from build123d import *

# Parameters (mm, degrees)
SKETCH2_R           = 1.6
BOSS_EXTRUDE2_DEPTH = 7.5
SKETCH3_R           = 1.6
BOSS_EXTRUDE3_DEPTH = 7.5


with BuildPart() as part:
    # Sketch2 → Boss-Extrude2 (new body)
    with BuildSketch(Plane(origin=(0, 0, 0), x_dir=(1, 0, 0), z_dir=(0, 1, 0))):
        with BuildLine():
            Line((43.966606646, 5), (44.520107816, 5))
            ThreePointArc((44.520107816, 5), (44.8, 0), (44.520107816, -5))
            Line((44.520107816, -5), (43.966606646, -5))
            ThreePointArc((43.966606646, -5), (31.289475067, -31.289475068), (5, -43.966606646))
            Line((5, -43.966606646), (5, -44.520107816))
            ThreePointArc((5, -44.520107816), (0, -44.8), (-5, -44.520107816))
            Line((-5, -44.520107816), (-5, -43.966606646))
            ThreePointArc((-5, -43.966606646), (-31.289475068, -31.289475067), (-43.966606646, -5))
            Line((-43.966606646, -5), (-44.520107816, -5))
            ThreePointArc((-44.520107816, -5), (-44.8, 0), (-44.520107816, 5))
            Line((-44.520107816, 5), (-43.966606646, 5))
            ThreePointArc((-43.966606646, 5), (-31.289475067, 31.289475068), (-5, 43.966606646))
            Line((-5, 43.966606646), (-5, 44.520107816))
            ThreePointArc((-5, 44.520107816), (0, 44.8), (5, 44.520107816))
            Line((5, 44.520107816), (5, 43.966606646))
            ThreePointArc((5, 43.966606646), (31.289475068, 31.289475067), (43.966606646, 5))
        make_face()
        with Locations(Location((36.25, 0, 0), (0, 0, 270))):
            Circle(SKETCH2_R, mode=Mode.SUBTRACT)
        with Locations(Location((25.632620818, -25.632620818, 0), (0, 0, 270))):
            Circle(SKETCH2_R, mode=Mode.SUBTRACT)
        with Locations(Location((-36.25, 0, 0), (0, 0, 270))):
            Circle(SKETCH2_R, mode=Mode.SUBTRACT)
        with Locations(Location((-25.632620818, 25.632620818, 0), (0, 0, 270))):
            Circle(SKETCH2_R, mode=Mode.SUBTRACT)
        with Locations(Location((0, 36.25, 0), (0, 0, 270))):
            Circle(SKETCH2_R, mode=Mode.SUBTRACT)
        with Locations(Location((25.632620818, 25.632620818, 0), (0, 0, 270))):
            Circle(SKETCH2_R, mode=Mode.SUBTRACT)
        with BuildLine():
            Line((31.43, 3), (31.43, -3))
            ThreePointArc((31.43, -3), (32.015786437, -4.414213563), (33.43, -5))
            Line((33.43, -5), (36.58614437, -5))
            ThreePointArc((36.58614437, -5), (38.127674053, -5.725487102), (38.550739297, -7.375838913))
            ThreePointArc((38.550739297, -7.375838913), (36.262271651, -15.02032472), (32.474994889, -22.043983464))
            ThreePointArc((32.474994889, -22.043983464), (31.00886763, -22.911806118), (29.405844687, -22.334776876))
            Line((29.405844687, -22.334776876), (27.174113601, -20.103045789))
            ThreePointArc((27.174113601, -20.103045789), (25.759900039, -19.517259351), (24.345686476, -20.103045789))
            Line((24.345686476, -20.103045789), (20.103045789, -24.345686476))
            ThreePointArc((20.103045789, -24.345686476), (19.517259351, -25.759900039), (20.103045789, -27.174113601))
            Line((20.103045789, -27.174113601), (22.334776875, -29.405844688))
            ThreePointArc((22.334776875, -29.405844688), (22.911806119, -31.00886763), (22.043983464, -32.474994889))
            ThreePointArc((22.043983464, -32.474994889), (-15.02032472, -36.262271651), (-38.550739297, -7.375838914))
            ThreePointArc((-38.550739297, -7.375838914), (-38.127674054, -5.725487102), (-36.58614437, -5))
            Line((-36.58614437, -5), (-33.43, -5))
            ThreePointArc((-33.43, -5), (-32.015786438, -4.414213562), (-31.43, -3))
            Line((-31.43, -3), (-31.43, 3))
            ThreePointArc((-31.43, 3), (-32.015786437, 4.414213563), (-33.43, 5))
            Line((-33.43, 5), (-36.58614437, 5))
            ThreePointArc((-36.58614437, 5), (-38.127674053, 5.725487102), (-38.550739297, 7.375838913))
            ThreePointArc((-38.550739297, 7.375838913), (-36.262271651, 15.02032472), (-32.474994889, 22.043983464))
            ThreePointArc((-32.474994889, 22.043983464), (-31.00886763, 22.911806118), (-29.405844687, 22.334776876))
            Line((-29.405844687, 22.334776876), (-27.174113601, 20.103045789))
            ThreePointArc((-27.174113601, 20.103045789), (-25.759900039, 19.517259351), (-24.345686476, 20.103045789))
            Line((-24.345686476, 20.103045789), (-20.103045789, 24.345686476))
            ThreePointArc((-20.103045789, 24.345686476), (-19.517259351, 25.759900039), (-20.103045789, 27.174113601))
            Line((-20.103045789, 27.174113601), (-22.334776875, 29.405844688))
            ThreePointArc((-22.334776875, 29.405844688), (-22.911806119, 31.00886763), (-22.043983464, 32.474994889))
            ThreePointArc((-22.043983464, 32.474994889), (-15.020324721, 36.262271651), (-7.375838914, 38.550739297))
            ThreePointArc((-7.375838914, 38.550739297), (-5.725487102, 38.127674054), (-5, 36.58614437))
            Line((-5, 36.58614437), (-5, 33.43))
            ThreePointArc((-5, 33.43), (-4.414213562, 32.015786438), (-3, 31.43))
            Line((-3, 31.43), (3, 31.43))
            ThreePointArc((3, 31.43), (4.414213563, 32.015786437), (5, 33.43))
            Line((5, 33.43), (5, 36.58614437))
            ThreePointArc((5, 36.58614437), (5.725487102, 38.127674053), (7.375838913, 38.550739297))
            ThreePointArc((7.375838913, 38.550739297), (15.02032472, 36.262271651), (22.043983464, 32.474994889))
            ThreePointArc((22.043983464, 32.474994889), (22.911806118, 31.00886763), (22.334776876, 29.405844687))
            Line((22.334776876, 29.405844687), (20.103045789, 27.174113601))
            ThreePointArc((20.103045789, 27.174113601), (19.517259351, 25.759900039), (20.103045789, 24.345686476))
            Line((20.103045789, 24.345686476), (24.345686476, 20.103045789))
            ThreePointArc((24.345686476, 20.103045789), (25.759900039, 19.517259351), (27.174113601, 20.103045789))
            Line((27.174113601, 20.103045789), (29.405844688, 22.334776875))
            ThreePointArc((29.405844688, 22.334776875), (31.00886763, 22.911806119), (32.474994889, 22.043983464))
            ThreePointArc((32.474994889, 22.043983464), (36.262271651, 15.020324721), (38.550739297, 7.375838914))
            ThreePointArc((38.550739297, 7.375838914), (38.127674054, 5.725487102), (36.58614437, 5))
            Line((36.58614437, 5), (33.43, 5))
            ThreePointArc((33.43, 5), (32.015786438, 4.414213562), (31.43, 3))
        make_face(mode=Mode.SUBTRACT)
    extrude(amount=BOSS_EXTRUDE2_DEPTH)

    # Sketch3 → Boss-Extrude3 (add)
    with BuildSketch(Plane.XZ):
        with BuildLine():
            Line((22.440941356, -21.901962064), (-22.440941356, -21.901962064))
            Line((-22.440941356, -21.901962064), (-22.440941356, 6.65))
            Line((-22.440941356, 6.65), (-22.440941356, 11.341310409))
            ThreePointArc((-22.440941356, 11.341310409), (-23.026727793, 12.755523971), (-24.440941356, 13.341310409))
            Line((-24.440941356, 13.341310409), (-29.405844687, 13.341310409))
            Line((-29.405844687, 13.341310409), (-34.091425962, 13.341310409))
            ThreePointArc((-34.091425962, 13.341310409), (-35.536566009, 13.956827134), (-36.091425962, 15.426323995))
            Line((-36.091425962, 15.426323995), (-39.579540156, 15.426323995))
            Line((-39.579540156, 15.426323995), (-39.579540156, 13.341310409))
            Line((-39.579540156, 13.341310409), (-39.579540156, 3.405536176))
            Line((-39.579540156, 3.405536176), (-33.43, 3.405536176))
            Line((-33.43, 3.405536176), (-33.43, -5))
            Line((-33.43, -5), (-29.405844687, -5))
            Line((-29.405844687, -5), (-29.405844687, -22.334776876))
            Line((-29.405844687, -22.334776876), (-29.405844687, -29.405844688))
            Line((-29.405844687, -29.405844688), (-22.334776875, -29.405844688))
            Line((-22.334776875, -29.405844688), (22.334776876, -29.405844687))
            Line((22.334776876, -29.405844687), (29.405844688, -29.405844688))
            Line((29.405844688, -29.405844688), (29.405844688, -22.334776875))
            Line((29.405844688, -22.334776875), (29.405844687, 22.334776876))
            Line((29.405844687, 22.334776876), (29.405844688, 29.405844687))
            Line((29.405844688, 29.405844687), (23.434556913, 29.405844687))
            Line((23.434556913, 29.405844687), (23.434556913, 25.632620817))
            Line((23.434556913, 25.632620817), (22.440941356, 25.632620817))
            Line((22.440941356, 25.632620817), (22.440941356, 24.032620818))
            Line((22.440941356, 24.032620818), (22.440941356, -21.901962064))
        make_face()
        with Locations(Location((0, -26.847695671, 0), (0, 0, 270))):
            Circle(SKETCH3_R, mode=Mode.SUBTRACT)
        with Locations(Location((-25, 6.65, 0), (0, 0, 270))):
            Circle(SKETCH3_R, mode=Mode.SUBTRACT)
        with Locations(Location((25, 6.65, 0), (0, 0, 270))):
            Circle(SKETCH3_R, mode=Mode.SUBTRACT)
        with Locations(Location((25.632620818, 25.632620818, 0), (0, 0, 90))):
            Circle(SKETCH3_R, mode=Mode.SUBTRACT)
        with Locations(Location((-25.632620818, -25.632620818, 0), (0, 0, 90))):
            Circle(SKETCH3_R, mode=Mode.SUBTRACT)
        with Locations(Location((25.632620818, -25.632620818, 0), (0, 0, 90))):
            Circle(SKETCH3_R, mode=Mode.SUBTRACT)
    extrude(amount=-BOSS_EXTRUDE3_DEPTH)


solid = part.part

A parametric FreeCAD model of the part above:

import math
import FreeCAD as App
import Part
import Sketcher

doc = App.newDocument("Part")
body = doc.addObject("PartDesign::Body", "Body")

# Sketch on XZ plane
sketch1 = doc.addObject("Sketcher::SketchObject", "Sketch")
body.addObject(sketch1)
sketch1.AttachmentSupport = (doc.XZ_Plane, [""])
sketch1.MapMode = "FlatFace"
sketch1.addGeometry(Part.LineSegment(App.Vector(44.5, -5, 0), App.Vector(44, -5, 0)), False)
sketch1.addGeometry(Part.ArcOfCircle(Part.Circle(App.Vector(0, 0, 0), App.Vector(0, 0, 1), 44.2), math.radians(-84), math.radians(-6)), False)
sketch1.addGeometry(Part.LineSegment(App.Vector(5, -44, 0), App.Vector(5, -44.5, 0)), False)
sketch1.addGeometry(Part.ArcOfCircle(Part.Circle(App.Vector(0, 0, 0), App.Vector(0, 0, 1), 44.8), math.radians(-96.41), math.radians(-83.59)), False)
sketch1.addGeometry(Part.LineSegment(App.Vector(-5, -44.5, 0), App.Vector(-5, -44, 0)), False)
sketch1.addGeometry(Part.ArcOfCircle(Part.Circle(App.Vector(0, 0, 0), App.Vector(0, 0, 1), 44.2), math.radians(-174), math.radians(-96)), False)
sketch1.addGeometry(Part.LineSegment(App.Vector(-44, -5, 0), App.Vector(-44.5, -5, 0)), False)
sketch1.addGeometry(Part.ArcOfCircle(Part.Circle(App.Vector(0, 0, 0), App.Vector(0, 0, 1), 44.8), math.radians(173.59), math.radians(186.41)), False)
sketch1.addGeometry(Part.LineSegment(App.Vector(-44.5, 5, 0), App.Vector(-44, 5, 0)), False)
sketch1.addGeometry(Part.ArcOfCircle(Part.Circle(App.Vector(0, 0, 0), App.Vector(0, 0, 1), 44.2), math.radians(96), math.radians(174)), False)
sketch1.addGeometry(Part.LineSegment(App.Vector(-5, 44, 0), App.Vector(-5, 44.5, 0)), False)
sketch1.addGeometry(Part.ArcOfCircle(Part.Circle(App.Vector(0, 0, 0), App.Vector(0, 0, 1), 44.8), math.radians(83.59), math.radians(96.41)), False)
sketch1.addGeometry(Part.LineSegment(App.Vector(5, 44.5, 0), App.Vector(5, 44, 0)), False)
sketch1.addGeometry(Part.ArcOfCircle(Part.Circle(App.Vector(0, 0, 0), App.Vector(0, 0, 1), 44.2), math.radians(6), math.radians(84)), False)
sketch1.addGeometry(Part.LineSegment(App.Vector(44, 5, 0), App.Vector(44.5, 5, 0)), False)
sketch1.addGeometry(Part.ArcOfCircle(Part.Circle(App.Vector(0, 0, 0), App.Vector(0, 0, 1), 44.8), math.radians(-6.41), math.radians(6.41)), False)
sketch1.addGeometry(Part.Circle(App.Vector(25.6, 25.6, 0), App.Vector(0, 0, 1), 1.6), False)
sketch1.addGeometry(Part.Circle(App.Vector(36.2, 0, 0), App.Vector(0, 0, 1), 1.6), False)
sketch1.addGeometry(Part.Circle(App.Vector(25.6, -25.6, 0), App.Vector(0, 0, 1), 1.6), False)
sketch1.addGeometry(Part.LineSegment(App.Vector(31.4, -3, 0), App.Vector(31.4, 3, 0)), False)
sketch1.addGeometry(Part.ArcOfCircle(Part.Circle(App.Vector(33.4, 3, 0), App.Vector(0, 0, 1), 2), math.radians(90), math.radians(180)), False)
sketch1.addGeometry(Part.LineSegment(App.Vector(33.4, 5, 0), App.Vector(36.6, 5, 0)), False)
sketch1.addGeometry(Part.ArcOfCircle(Part.Circle(App.Vector(36.6, 7, 0), App.Vector(0, 0, 1), 2), math.radians(-90), math.radians(11)), False)
sketch1.addGeometry(Part.ArcOfCircle(Part.Circle(App.Vector(0, 0, 0), App.Vector(0, 0, 1), 39.3), math.radians(11), math.radians(34)), False)
sketch1.addGeometry(Part.ArcOfCircle(Part.Circle(App.Vector(30.8, 20.9, 0), App.Vector(0, 0, 1), 2), math.radians(34), math.radians(135)), False)
sketch1.addGeometry(Part.LineSegment(App.Vector(29.4, 22.3, 0), App.Vector(27.2, 20.1, 0)), False)
sketch1.addGeometry(Part.ArcOfCircle(Part.Circle(App.Vector(25.8, 21.5, 0), App.Vector(0, 0, 1), 2), math.radians(-135), math.radians(-45)), False)
sketch1.addGeometry(Part.LineSegment(App.Vector(24.3, 20.1, 0), App.Vector(20.1, 24.3, 0)), False)
sketch1.addGeometry(Part.ArcOfCircle(Part.Circle(App.Vector(21.5, 25.8, 0), App.Vector(0, 0, 1), 2), math.radians(135), math.radians(225)), False)
sketch1.addGeometry(Part.LineSegment(App.Vector(20.1, 27.2, 0), App.Vector(22.3, 29.4, 0)), False)
sketch1.addGeometry(Part.ArcOfCircle(Part.Circle(App.Vector(20.9, 30.8, 0), App.Vector(0, 0, 1), 2), math.radians(-45), math.radians(56)), False)
sketch1.addGeometry(Part.ArcOfCircle(Part.Circle(App.Vector(0, 0, 0), App.Vector(0, 0, 1), 39.3), math.radians(56), math.radians(169)), False)
sketch1.addGeometry(Part.ArcOfCircle(Part.Circle(App.Vector(-36.6, 7, 0), App.Vector(0, 0, 1), 2), math.radians(169), math.radians(270)), False)
sketch1.addGeometry(Part.LineSegment(App.Vector(-36.6, 5, 0), App.Vector(-33.4, 5, 0)), False)
sketch1.addGeometry(Part.ArcOfCircle(Part.Circle(App.Vector(-33.4, 3, 0), App.Vector(0, 0, 1), 2), math.radians(0), math.radians(90)), False)
sketch1.addGeometry(Part.LineSegment(App.Vector(-31.4, 3, 0), App.Vector(-31.4, -3, 0)), False)
sketch1.addGeometry(Part.ArcOfCircle(Part.Circle(App.Vector(-33.4, -3, 0), App.Vector(0, 0, 1), 2), math.radians(-90), math.radians(0)), False)
sketch1.addGeometry(Part.LineSegment(App.Vector(-33.4, -5, 0), App.Vector(-36.6, -5, 0)), False)
sketch1.addGeometry(Part.ArcOfCircle(Part.Circle(App.Vector(-36.6, -7, 0), App.Vector(0, 0, 1), 2), math.radians(90), math.radians(191)), False)
sketch1.addGeometry(Part.ArcOfCircle(Part.Circle(App.Vector(0, 0, 0), App.Vector(0, 0, 1), 39.3), math.radians(-169), math.radians(-146)), False)
sketch1.addGeometry(Part.ArcOfCircle(Part.Circle(App.Vector(-30.8, -20.9, 0), App.Vector(0, 0, 1), 2), math.radians(-146), math.radians(-45)), False)
sketch1.addGeometry(Part.LineSegment(App.Vector(-29.4, -22.3, 0), App.Vector(-27.2, -20.1, 0)), False)
sketch1.addGeometry(Part.ArcOfCircle(Part.Circle(App.Vector(-25.8, -21.5, 0), App.Vector(0, 0, 1), 2), math.radians(45), math.radians(135)), False)
sketch1.addGeometry(Part.LineSegment(App.Vector(-24.3, -20.1, 0), App.Vector(-20.1, -24.3, 0)), False)
sketch1.addGeometry(Part.ArcOfCircle(Part.Circle(App.Vector(-21.5, -25.8, 0), App.Vector(0, 0, 1), 2), math.radians(-45), math.radians(45)), False)
sketch1.addGeometry(Part.LineSegment(App.Vector(-20.1, -27.2, 0), App.Vector(-22.3, -29.4, 0)), False)
sketch1.addGeometry(Part.ArcOfCircle(Part.Circle(App.Vector(-20.9, -30.8, 0), App.Vector(0, 0, 1), 2), math.radians(135), math.radians(236)), False)
sketch1.addGeometry(Part.ArcOfCircle(Part.Circle(App.Vector(0, 0, 0), App.Vector(0, 0, 1), 39.3), math.radians(-124), math.radians(-101)), False)
sketch1.addGeometry(Part.ArcOfCircle(Part.Circle(App.Vector(-7, -36.6, 0), App.Vector(0, 0, 1), 2), math.radians(-101), math.radians(0)), False)
sketch1.addGeometry(Part.LineSegment(App.Vector(-5, -36.6, 0), App.Vector(-5, -33.4, 0)), False)
sketch1.addGeometry(Part.ArcOfCircle(Part.Circle(App.Vector(-3, -33.4, 0), App.Vector(0, 0, 1), 2), math.radians(90), math.radians(180)), False)
sketch1.addGeometry(Part.LineSegment(App.Vector(-3, -31.4, 0), App.Vector(3, -31.4, 0)), False)
sketch1.addGeometry(Part.ArcOfCircle(Part.Circle(App.Vector(3, -33.4, 0), App.Vector(0, 0, 1), 2), math.radians(0), math.radians(90)), False)
sketch1.addGeometry(Part.LineSegment(App.Vector(5, -33.4, 0), App.Vector(5, -36.6, 0)), False)
sketch1.addGeometry(Part.ArcOfCircle(Part.Circle(App.Vector(7, -36.6, 0), App.Vector(0, 0, 1), 2), math.radians(180), math.radians(281)), False)
sketch1.addGeometry(Part.ArcOfCircle(Part.Circle(App.Vector(0, 0, 0), App.Vector(0, 0, 1), 39.3), math.radians(-79), math.radians(-56)), False)
sketch1.addGeometry(Part.ArcOfCircle(Part.Circle(App.Vector(20.9, -30.8, 0), App.Vector(0, 0, 1), 2), math.radians(-56), math.radians(45)), False)
sketch1.addGeometry(Part.LineSegment(App.Vector(22.3, -29.4, 0), App.Vector(20.1, -27.2, 0)), False)
sketch1.addGeometry(Part.ArcOfCircle(Part.Circle(App.Vector(21.5, -25.8, 0), App.Vector(0, 0, 1), 2), math.radians(135), math.radians(225)), False)
sketch1.addGeometry(Part.LineSegment(App.Vector(20.1, -24.3, 0), App.Vector(24.3, -20.1, 0)), False)
sketch1.addGeometry(Part.ArcOfCircle(Part.Circle(App.Vector(25.8, -21.5, 0), App.Vector(0, 0, 1), 2), math.radians(45), math.radians(135)), False)
sketch1.addGeometry(Part.LineSegment(App.Vector(27.2, -20.1, 0), App.Vector(29.4, -22.3, 0)), False)
sketch1.addGeometry(Part.ArcOfCircle(Part.Circle(App.Vector(30.8, -20.9, 0), App.Vector(0, 0, 1), 2), math.radians(-135), math.radians(-34)), False)
sketch1.addGeometry(Part.ArcOfCircle(Part.Circle(App.Vector(0, 0, 0), App.Vector(0, 0, 1), 39.3), math.radians(-34), math.radians(-11)), False)
sketch1.addGeometry(Part.ArcOfCircle(Part.Circle(App.Vector(36.6, -7, 0), App.Vector(0, 0, 1), 2), math.radians(-11), math.radians(90)), False)
sketch1.addGeometry(Part.LineSegment(App.Vector(36.6, -5, 0), App.Vector(33.4, -5, 0)), False)
sketch1.addGeometry(Part.ArcOfCircle(Part.Circle(App.Vector(33.4, -3, 0), App.Vector(0, 0, 1), 2), math.radians(-180), math.radians(-90)), False)
sketch1.addGeometry(Part.Circle(App.Vector(-36.2, 0, 0), App.Vector(0, 0, 1), 1.6), False)
sketch1.addGeometry(Part.Circle(App.Vector(0, -36.2, 0), App.Vector(0, 0, 1), 1.6), False)
sketch1.addGeometry(Part.Circle(App.Vector(-25.6, -25.6, 0), App.Vector(0, 0, 1), 1.6), False)
sketch1.addConstraint(Sketcher.Constraint("Coincident", 0, 2, 1, 2))
sketch1.addConstraint(Sketcher.Constraint("Coincident", 1, 1, 2, 1))
sketch1.addConstraint(Sketcher.Constraint("Coincident", 2, 2, 3, 2))
sketch1.addConstraint(Sketcher.Constraint("Coincident", 3, 1, 4, 1))
sketch1.addConstraint(Sketcher.Constraint("Coincident", 4, 2, 5, 2))
sketch1.addConstraint(Sketcher.Constraint("Coincident", 5, 1, 6, 1))
sketch1.addConstraint(Sketcher.Constraint("Coincident", 6, 2, 7, 2))
sketch1.addConstraint(Sketcher.Constraint("Coincident", 7, 1, 8, 1))
sketch1.addConstraint(Sketcher.Constraint("Coincident", 8, 2, 9, 2))
sketch1.addConstraint(Sketcher.Constraint("Coincident", 9, 1, 10, 1))
sketch1.addConstraint(Sketcher.Constraint("Coincident", 10, 2, 11, 2))
sketch1.addConstraint(Sketcher.Constraint("Coincident", 11, 1, 12, 1))
sketch1.addConstraint(Sketcher.Constraint("Coincident", 12, 2, 13, 2))
sketch1.addConstraint(Sketcher.Constraint("Coincident", 13, 1, 14, 1))
sketch1.addConstraint(Sketcher.Constraint("Coincident", 14, 2, 15, 2))
sketch1.addConstraint(Sketcher.Constraint("Coincident", 15, 1, 0, 1))
sketch1.addConstraint(Sketcher.Constraint("Tangent", 19, 2, 20, 2))
sketch1.addConstraint(Sketcher.Constraint("Tangent", 20, 1, 21, 1))
sketch1.addConstraint(Sketcher.Constraint("Coincident", 21, 2, 22, 1))
sketch1.addConstraint(Sketcher.Constraint("Tangent", 22, 2, 23, 1))
sketch1.addConstraint(Sketcher.Constraint("Tangent", 23, 2, 24, 1))
sketch1.addConstraint(Sketcher.Constraint("Coincident", 24, 2, 25, 1))
sketch1.addConstraint(Sketcher.Constraint("Tangent", 25, 2, 26, 2))
sketch1.addConstraint(Sketcher.Constraint("Tangent", 26, 1, 27, 1))
sketch1.addConstraint(Sketcher.Constraint("Tangent", 27, 2, 28, 2))
sketch1.addConstraint(Sketcher.Constraint("Tangent", 28, 1, 29, 1))
sketch1.addConstraint(Sketcher.Constraint("Coincident", 29, 2, 30, 1))
sketch1.addConstraint(Sketcher.Constraint("Tangent", 30, 2, 31, 1))
sketch1.addConstraint(Sketcher.Constraint("Tangent", 31, 2, 32, 1))
sketch1.addConstraint(Sketcher.Constraint("Coincident", 32, 2, 33, 1))
sketch1.addConstraint(Sketcher.Constraint("Tangent", 33, 2, 34, 2))
sketch1.addConstraint(Sketcher.Constraint("Tangent", 34, 1, 35, 1))
sketch1.addConstraint(Sketcher.Constraint("Tangent", 35, 2, 36, 2))
sketch1.addConstraint(Sketcher.Constraint("Tangent", 36, 1, 37, 1))
sketch1.addConstraint(Sketcher.Constraint("Coincident", 37, 2, 38, 1))
sketch1.addConstraint(Sketcher.Constraint("Tangent", 38, 2, 39, 1))
sketch1.addConstraint(Sketcher.Constraint("Tangent", 39, 2, 40, 1))
sketch1.addConstraint(Sketcher.Constraint("Coincident", 40, 2, 41, 1))
sketch1.addConstraint(Sketcher.Constraint("Tangent", 41, 2, 42, 2))
sketch1.addConstraint(Sketcher.Constraint("Tangent", 42, 1, 43, 1))
sketch1.addConstraint(Sketcher.Constraint("Tangent", 43, 2, 44, 2))
sketch1.addConstraint(Sketcher.Constraint("Tangent", 44, 1, 45, 1))
sketch1.addConstraint(Sketcher.Constraint("Coincident", 45, 2, 46, 1))
sketch1.addConstraint(Sketcher.Constraint("Tangent", 46, 2, 47, 1))
sketch1.addConstraint(Sketcher.Constraint("Tangent", 47, 2, 48, 1))
sketch1.addConstraint(Sketcher.Constraint("Coincident", 48, 2, 49, 1))
sketch1.addConstraint(Sketcher.Constraint("Tangent", 49, 2, 50, 2))
sketch1.addConstraint(Sketcher.Constraint("Tangent", 50, 1, 51, 1))
sketch1.addConstraint(Sketcher.Constraint("Tangent", 51, 2, 52, 2))
sketch1.addConstraint(Sketcher.Constraint("Tangent", 52, 1, 53, 1))
sketch1.addConstraint(Sketcher.Constraint("Coincident", 53, 2, 54, 1))
sketch1.addConstraint(Sketcher.Constraint("Tangent", 54, 2, 55, 1))
sketch1.addConstraint(Sketcher.Constraint("Tangent", 55, 2, 56, 1))
sketch1.addConstraint(Sketcher.Constraint("Coincident", 56, 2, 57, 1))
sketch1.addConstraint(Sketcher.Constraint("Tangent", 57, 2, 58, 2))
sketch1.addConstraint(Sketcher.Constraint("Tangent", 58, 1, 59, 1))
sketch1.addConstraint(Sketcher.Constraint("Tangent", 59, 2, 60, 2))
sketch1.addConstraint(Sketcher.Constraint("Tangent", 60, 1, 61, 1))
sketch1.addConstraint(Sketcher.Constraint("Coincident", 61, 2, 62, 1))
sketch1.addConstraint(Sketcher.Constraint("Tangent", 62, 2, 63, 1))
sketch1.addConstraint(Sketcher.Constraint("Tangent", 63, 2, 64, 1))
sketch1.addConstraint(Sketcher.Constraint("Coincident", 64, 2, 65, 1))
sketch1.addConstraint(Sketcher.Constraint("Tangent", 65, 2, 66, 2))
sketch1.addConstraint(Sketcher.Constraint("Tangent", 66, 1, 19, 1))
sketch1.addConstraint(Sketcher.Constraint("Horizontal", 0))
sketch1.addConstraint(Sketcher.Constraint("Vertical", 2))
sketch1.addConstraint(Sketcher.Constraint("Vertical", 4))
sketch1.addConstraint(Sketcher.Constraint("Horizontal", 6))
sketch1.addConstraint(Sketcher.Constraint("Horizontal", 8))
sketch1.addConstraint(Sketcher.Constraint("Vertical", 10))
sketch1.addConstraint(Sketcher.Constraint("Vertical", 12))
sketch1.addConstraint(Sketcher.Constraint("Horizontal", 14))
sketch1.addConstraint(Sketcher.Constraint("Vertical", 19))
sketch1.addConstraint(Sketcher.Constraint("Horizontal", 21))
sketch1.addConstraint(Sketcher.Constraint("Horizontal", 33))
sketch1.addConstraint(Sketcher.Constraint("Vertical", 35))
sketch1.addConstraint(Sketcher.Constraint("Horizontal", 37))
sketch1.addConstraint(Sketcher.Constraint("Vertical", 49))
sketch1.addConstraint(Sketcher.Constraint("Horizontal", 51))
sketch1.addConstraint(Sketcher.Constraint("Vertical", 53))
sketch1.addConstraint(Sketcher.Constraint("Horizontal", 65))
sketch1.addConstraint(Sketcher.Constraint("Coincident", 1, 3, -1, 1))
sketch1.addConstraint(Sketcher.Constraint("Coincident", 3, 3, -1, 1))
sketch1.addConstraint(Sketcher.Constraint("Coincident", 5, 3, -1, 1))
sketch1.addConstraint(Sketcher.Constraint("Coincident", 7, 3, -1, 1))
sketch1.addConstraint(Sketcher.Constraint("Coincident", 9, 3, -1, 1))
sketch1.addConstraint(Sketcher.Constraint("Coincident", 11, 3, -1, 1))
sketch1.addConstraint(Sketcher.Constraint("Coincident", 13, 3, -1, 1))
sketch1.addConstraint(Sketcher.Constraint("Coincident", 15, 3, -1, 1))
sketch1.addConstraint(Sketcher.Constraint("Coincident", 23, 3, -1, 1))
sketch1.addConstraint(Sketcher.Constraint("Coincident", 31, 3, -1, 1))
sketch1.addConstraint(Sketcher.Constraint("Coincident", 39, 3, -1, 1))
sketch1.addConstraint(Sketcher.Constraint("Coincident", 47, 3, -1, 1))
sketch1.addConstraint(Sketcher.Constraint("Coincident", 55, 3, -1, 1))
sketch1.addConstraint(Sketcher.Constraint("Coincident", 63, 3, -1, 1))
sketch1.addConstraint(Sketcher.Constraint("Equal", 1, 5))
sketch1.addConstraint(Sketcher.Constraint("Equal", 3, 7))
sketch1.addConstraint(Sketcher.Constraint("Equal", 5, 9))
sketch1.addConstraint(Sketcher.Constraint("Equal", 7, 11))
sketch1.addConstraint(Sketcher.Constraint("Equal", 9, 13))
sketch1.addConstraint(Sketcher.Constraint("Equal", 11, 15))
sketch1.addConstraint(Sketcher.Constraint("Equal", 16, 17))
sketch1.addConstraint(Sketcher.Constraint("Equal", 17, 18))
sketch1.addConstraint(Sketcher.Constraint("Equal", 20, 22))
sketch1.addConstraint(Sketcher.Constraint("Equal", 22, 24))
sketch1.addConstraint(Sketcher.Constraint("Equal", 24, 26))
sketch1.addConstraint(Sketcher.Constraint("Equal", 26, 28))
sketch1.addConstraint(Sketcher.Constraint("Equal", 28, 30))
sketch1.addConstraint(Sketcher.Constraint("Equal", 23, 31))
sketch1.addConstraint(Sketcher.Constraint("Equal", 30, 32))
sketch1.addConstraint(Sketcher.Constraint("Equal", 32, 34))
sketch1.addConstraint(Sketcher.Constraint("Equal", 34, 36))
sketch1.addConstraint(Sketcher.Constraint("Equal", 36, 38))
sketch1.addConstraint(Sketcher.Constraint("Equal", 31, 39))
sketch1.addConstraint(Sketcher.Constraint("Equal", 38, 40))
sketch1.addConstraint(Sketcher.Constraint("Equal", 40, 42))
sketch1.addConstraint(Sketcher.Constraint("Equal", 42, 44))
sketch1.addConstraint(Sketcher.Constraint("Equal", 44, 46))
sketch1.addConstraint(Sketcher.Constraint("Equal", 39, 47))
sketch1.addConstraint(Sketcher.Constraint("Equal", 46, 48))
sketch1.addConstraint(Sketcher.Constraint("Equal", 48, 50))
sketch1.addConstraint(Sketcher.Constraint("Equal", 50, 52))
sketch1.addConstraint(Sketcher.Constraint("Equal", 52, 54))
sketch1.addConstraint(Sketcher.Constraint("Equal", 47, 55))
sketch1.addConstraint(Sketcher.Constraint("Equal", 54, 56))
sketch1.addConstraint(Sketcher.Constraint("Equal", 56, 58))
sketch1.addConstraint(Sketcher.Constraint("Equal", 58, 60))
sketch1.addConstraint(Sketcher.Constraint("Equal", 60, 62))
sketch1.addConstraint(Sketcher.Constraint("Equal", 55, 63))
sketch1.addConstraint(Sketcher.Constraint("Equal", 62, 64))
sketch1.addConstraint(Sketcher.Constraint("Equal", 64, 66))
sketch1.addConstraint(Sketcher.Constraint("Equal", 18, 67))
sketch1.addConstraint(Sketcher.Constraint("Equal", 67, 68))
sketch1.addConstraint(Sketcher.Constraint("Equal", 68, 69))
sketch1.addConstraint(Sketcher.Constraint("Symmetric", 20, 3, 36, 3, -1, 1))
sketch1.addConstraint(Sketcher.Constraint("Symmetric", 26, 3, 42, 3, -1, 1))
sketch1.addConstraint(Sketcher.Constraint("Symmetric", 28, 3, 44, 3, -1, 1))
sketch1.addConstraint(Sketcher.Constraint("Symmetric", 17, 3, 67, 3, -1, 1))
sketch1.addConstraint(Sketcher.Constraint("Symmetric", 16, 3, 69, 3, -1, 1))
sketch1.addConstraint(Sketcher.Constraint("Symmetric", 24, 2, 40, 2, -1, 1))
sketch1.addConstraint(Sketcher.Constraint("Symmetric", 29, 2, 45, 2, -1, 1))
sketch1.addConstraint(Sketcher.Constraint("Symmetric", 32, 2, 64, 2, -1, 1))
sketch1.addConstraint(Sketcher.Constraint("Symmetric", 44, 3, 58, 3, -2))
sketch1.addConstraint(Sketcher.Constraint("Symmetric", 42, 3, 60, 3, -2))
sketch1.addConstraint(Sketcher.Constraint("Symmetric", 18, 3, 69, 3, -2))
sketch1.addConstraint(Sketcher.Constraint("Symmetric", 21, 2, 32, 2, -2))
sketch1.addConstraint(Sketcher.Constraint("Symmetric", 48, 2, 53, 2, -2))
sketch1.addConstraint(Sketcher.Constraint("Symmetric", 45, 2, 56, 2, -2))
sketch1.addConstraint(Sketcher.Constraint("Symmetric", 40, 2, 61, 2, -2))
sketch1.addConstraint(Sketcher.Constraint("PointOnObject", 17, 3, -1))
sketch1.addConstraint(Sketcher.Constraint("PointOnObject", 68, 3, -2))
sketch1.addConstraint(Sketcher.Constraint("Perpendicular", 25, 27))
sketch1.addConstraint(Sketcher.Constraint("Perpendicular", 27, 29))
sketch1.addConstraint(Sketcher.Constraint("Perpendicular", 45, 57))
sketch1.addConstraint(Sketcher.Constraint("Horizontal", 2, 2, 3, 1))
sketch1.addConstraint(Sketcher.Constraint("Horizontal", 0, 2, 5, 1))
sketch1.addConstraint(Sketcher.Constraint("Horizontal", 10, 2, 11, 1))
sketch1.addConstraint(Sketcher.Constraint("Horizontal", 8, 2, 13, 1))
sketch1.addConstraint(Sketcher.Constraint("Horizontal", 14, 2, 20, 1))
sketch1.addConstraint(Sketcher.Constraint("Horizontal", 15, 1, 36, 1))
sketch1.addConstraint(Sketcher.Constraint("Vertical", 4, 2, 9, 1))
sketch1.addConstraint(Sketcher.Constraint("Vertical", 32, 2, 37, 2))
sketch1.addConstraint(Sketcher.Constraint("Vertical", 10, 2, 48, 2))
sketch1.addConstraint(Sketcher.Constraint("Equal", 51, 19))
sketch1.addConstraint(Sketcher.Constraint("Equal", 65, 49))
sketch1.addConstraint(Sketcher.Constraint("Equal", 25, 29))
sketch1.addConstraint(Sketcher.Constraint("Radius", 20, 2.0))
sketch1.addConstraint(Sketcher.Constraint("Diameter", 16, 3.2))
sketch1.addConstraint(Sketcher.Constraint("Radius", 3, 44.8))
sketch1.addConstraint(Sketcher.Constraint("DistanceX", 51, 1, 51, 2, 6.0))
sketch1.addConstraint(Sketcher.Constraint("Radius", 1, 44.25))
sketch1.addConstraint(Sketcher.Constraint("Radius", 23, 39.25))
sketch1.addConstraint(Sketcher.Constraint("Distance", 27, 6.0))
sketch1.addConstraint(Sketcher.Constraint("DistanceX", -1, 1, 17, 3, 36.25))
sketch1.addConstraint(Sketcher.Constraint("DistanceX", -1, 1, 20, 3, 33.43))
sketch1.addConstraint(Sketcher.Constraint("DistanceY", 50, 3, -1, 1, 33.43))
sketch1.addConstraint(Sketcher.Constraint("DistanceY", 68, 3, -1, 1, 36.25))
sketch1.addConstraint(Sketcher.Constraint("DistanceX", -1, 1, 26, 3, 25.7599))
sketch1.addConstraint(Sketcher.Constraint("DistanceY", -1, 1, 28, 3, 25.7599))
sketch1.addConstraint(Sketcher.Constraint("DistanceX", 21, 1, 21, 2, 3.156144))
sketch1.addConstraint(Sketcher.Constraint("DistanceX", -1, 1, 16, 3, 25.632621))
sketch1.addConstraint(Sketcher.Constraint("DistanceY", -1, 1, 16, 3, 25.632621))
sketch1.addConstraint(Sketcher.Constraint("Distance", 25, 3.156144))
pad1 = doc.addObject("PartDesign::Pad", "Pad")
body.addObject(pad1)
pad1.Profile = sketch1
pad1.Length = 7.5
pad1.Reversed = True

# Sketch on XZ plane
sketch2 = doc.addObject("Sketcher::SketchObject", "Sketch001")
body.addObject(sketch2)
sketch2.AttachmentSupport = (doc.XZ_Plane, [""])
sketch2.MapMode = "FlatFace"
sketch2.addGeometry(Part.LineSegment(App.Vector(22.4, -21.9, 0), App.Vector(-22.4, -21.9, 0)), False)
sketch2.addGeometry(Part.LineSegment(App.Vector(-22.4, -21.9, 0), App.Vector(-22.4, 11.3, 0)), False)
sketch2.addGeometry(Part.ArcOfCircle(Part.Circle(App.Vector(-24.4, 11.3, 0), App.Vector(0, 0, 1), 2), math.radians(0), math.radians(90)), False)
sketch2.addGeometry(Part.LineSegment(App.Vector(-24.4, 13.3, 0), App.Vector(-34.1, 13.3, 0)), False)
sketch2.addGeometry(Part.ArcOfCircle(Part.Circle(App.Vector(-34.1, 15.3, 0), App.Vector(0, 0, 1), 2), math.radians(178), math.radians(270)), False)
sketch2.addGeometry(Part.LineSegment(App.Vector(-36.1, 15.4, 0), App.Vector(-39.6, 15.4, 0)), False)
sketch2.addGeometry(Part.LineSegment(App.Vector(-39.6, 15.4, 0), App.Vector(-39.6, 3.4, 0)), False)
sketch2.addGeometry(Part.LineSegment(App.Vector(-39.6, 3.4, 0), App.Vector(-33.4, 3.4, 0)), False)
sketch2.addGeometry(Part.LineSegment(App.Vector(-33.4, 3.4, 0), App.Vector(-33.4, -5, 0)), False)
sketch2.addGeometry(Part.LineSegment(App.Vector(-33.4, -5, 0), App.Vector(-29.4, -5, 0)), False)
sketch2.addGeometry(Part.LineSegment(App.Vector(-29.4, -5, 0), App.Vector(-29.4, -29.4, 0)), False)
sketch2.addGeometry(Part.LineSegment(App.Vector(-29.4, -29.4, 0), App.Vector(-22.3, -29.4, 0)), False)
sketch2.addGeometry(Part.LineSegment(App.Vector(-22.3, -29.4, 0), App.Vector(22.3, -29.4, 0)), False)
sketch2.addGeometry(Part.LineSegment(App.Vector(22.3, -29.4, 0), App.Vector(29.4, -29.4, 0)), False)
sketch2.addGeometry(Part.LineSegment(App.Vector(29.4, -29.4, 0), App.Vector(29.4, -22.3, 0)), False)
sketch2.addGeometry(Part.LineSegment(App.Vector(29.4, -22.3, 0), App.Vector(29.4, 22.3, 0)), False)
sketch2.addGeometry(Part.LineSegment(App.Vector(29.4, 22.3, 0), App.Vector(29.4, 29.4, 0)), False)
sketch2.addGeometry(Part.LineSegment(App.Vector(29.4, 29.4, 0), App.Vector(23.4, 29.4, 0)), False)
sketch2.addGeometry(Part.LineSegment(App.Vector(23.4, 29.4, 0), App.Vector(23.4, 25.6, 0)), False)
sketch2.addGeometry(Part.LineSegment(App.Vector(23.4, 25.6, 0), App.Vector(22.4, 25.6, 0)), False)
sketch2.addGeometry(Part.LineSegment(App.Vector(22.4, 25.6, 0), App.Vector(22.4, -21.9, 0)), False)
sketch2.addGeometry(Part.Circle(App.Vector(-25.6, -25.6, 0), App.Vector(0, 0, 1), 1.6), False)
sketch2.addGeometry(Part.Circle(App.Vector(0, -26.8, 0), App.Vector(0, 0, 1), 1.6), False)
sketch2.addGeometry(Part.Circle(App.Vector(25.6, -25.6, 0), App.Vector(0, 0, 1), 1.6), False)
sketch2.addGeometry(Part.Circle(App.Vector(-25, 6.7, 0), App.Vector(0, 0, 1), 1.6), False)
sketch2.addGeometry(Part.Circle(App.Vector(25, 6.7, 0), App.Vector(0, 0, 1), 1.6), False)
sketch2.addGeometry(Part.Circle(App.Vector(25.6, 25.6, 0), App.Vector(0, 0, 1), 1.6), False)
sketch2.addConstraint(Sketcher.Constraint("Coincident", 0, 2, 1, 1))
sketch2.addConstraint(Sketcher.Constraint("Tangent", 1, 2, 2, 1))
sketch2.addConstraint(Sketcher.Constraint("Tangent", 2, 2, 3, 1))
sketch2.addConstraint(Sketcher.Constraint("Coincident", 3, 2, 4, 2))
sketch2.addConstraint(Sketcher.Constraint("Coincident", 4, 1, 5, 1))
sketch2.addConstraint(Sketcher.Constraint("Coincident", 5, 2, 6, 1))
sketch2.addConstraint(Sketcher.Constraint("Coincident", 6, 2, 7, 1))
sketch2.addConstraint(Sketcher.Constraint("Coincident", 7, 2, 8, 1))
sketch2.addConstraint(Sketcher.Constraint("Coincident", 8, 2, 9, 1))
sketch2.addConstraint(Sketcher.Constraint("Coincident", 9, 2, 10, 1))
sketch2.addConstraint(Sketcher.Constraint("Coincident", 10, 2, 11, 1))
sketch2.addConstraint(Sketcher.Constraint("Coincident", 11, 2, 12, 1))
sketch2.addConstraint(Sketcher.Constraint("Coincident", 12, 2, 13, 1))
sketch2.addConstraint(Sketcher.Constraint("Coincident", 13, 2, 14, 1))
sketch2.addConstraint(Sketcher.Constraint("Coincident", 14, 2, 15, 1))
sketch2.addConstraint(Sketcher.Constraint("Coincident", 15, 2, 16, 1))
sketch2.addConstraint(Sketcher.Constraint("Coincident", 16, 2, 17, 1))
sketch2.addConstraint(Sketcher.Constraint("Coincident", 17, 2, 18, 1))
sketch2.addConstraint(Sketcher.Constraint("Coincident", 18, 2, 19, 1))
sketch2.addConstraint(Sketcher.Constraint("Coincident", 19, 2, 20, 1))
sketch2.addConstraint(Sketcher.Constraint("Coincident", 20, 2, 0, 1))
sketch2.addConstraint(Sketcher.Constraint("Horizontal", 0))
sketch2.addConstraint(Sketcher.Constraint("Vertical", 1))
sketch2.addConstraint(Sketcher.Constraint("Horizontal", 3))
sketch2.addConstraint(Sketcher.Constraint("Horizontal", 5))
sketch2.addConstraint(Sketcher.Constraint("Vertical", 6))
sketch2.addConstraint(Sketcher.Constraint("Horizontal", 7))
sketch2.addConstraint(Sketcher.Constraint("Vertical", 8))
sketch2.addConstraint(Sketcher.Constraint("Horizontal", 9))
sketch2.addConstraint(Sketcher.Constraint("Vertical", 10))
sketch2.addConstraint(Sketcher.Constraint("Horizontal", 11))
sketch2.addConstraint(Sketcher.Constraint("Horizontal", 12))
sketch2.addConstraint(Sketcher.Constraint("Horizontal", 13))
sketch2.addConstraint(Sketcher.Constraint("Vertical", 14))
sketch2.addConstraint(Sketcher.Constraint("Vertical", 15))
sketch2.addConstraint(Sketcher.Constraint("Vertical", 16))
sketch2.addConstraint(Sketcher.Constraint("Horizontal", 17))
sketch2.addConstraint(Sketcher.Constraint("Vertical", 18))
sketch2.addConstraint(Sketcher.Constraint("Horizontal", 19))
sketch2.addConstraint(Sketcher.Constraint("Vertical", 20))
sketch2.addConstraint(Sketcher.Constraint("Equal", 2, 4))
sketch2.addConstraint(Sketcher.Constraint("Equal", 21, 22))
sketch2.addConstraint(Sketcher.Constraint("Equal", 22, 23))
sketch2.addConstraint(Sketcher.Constraint("Equal", 23, 24))
sketch2.addConstraint(Sketcher.Constraint("Equal", 24, 25))
sketch2.addConstraint(Sketcher.Constraint("Equal", 25, 26))
sketch2.addConstraint(Sketcher.Constraint("Symmetric", 21, 3, 26, 3, -1, 1))
sketch2.addConstraint(Sketcher.Constraint("Symmetric", 10, 2, 16, 2, -1, 1))
sketch2.addConstraint(Sketcher.Constraint("Symmetric", 21, 3, 23, 3, -2))
sketch2.addConstraint(Sketcher.Constraint("Symmetric", 24, 3, 25, 3, -2))
sketch2.addConstraint(Sketcher.Constraint("PointOnObject", 22, 3, -2))
sketch2.addConstraint(Sketcher.Constraint("Horizontal", 26, 3, 18, 2))
sketch2.addConstraint(Sketcher.Constraint("Equal", 11, 13))
sketch2.addConstraint(Sketcher.Constraint("Equal", 13, 14))
sketch2.addConstraint(Sketcher.Constraint("Equal", 12, 15))
sketch2.addConstraint(Sketcher.Constraint("Equal", 14, 16))
sketch2.addConstraint(Sketcher.Constraint("Radius", 2, 2.0))
sketch2.addConstraint(Sketcher.Constraint("Diameter", 21, 3.2))
sketch2.addConstraint(Sketcher.Constraint("DistanceX", 24, 3, -1, 1, 25.0))
sketch2.addConstraint(Sketcher.Constraint("DistanceY", 8, 2, -1, 1, 5.0))
sketch2.addConstraint(Sketcher.Constraint("DistanceX", 4, 1, 3, 2, 2.0))
sketch2.addConstraint(Sketcher.Constraint("DistanceY", -1, 1, 24, 3, 6.65))
sketch2.addConstraint(Sketcher.Constraint("DistanceX", 7, 2, -1, 1, 33.43))
sketch2.addConstraint(Sketcher.Constraint("DistanceX", 7, 1, 7, 2, 6.14954))
sketch2.addConstraint(Sketcher.Constraint("DistanceX", 5, 2, 2, 2, 15.138599))
sketch2.addConstraint(Sketcher.Constraint("DistanceX", 1, 2, 17, 2, 45.875498))
sketch2.addConstraint(Sketcher.Constraint("DistanceX", 0, 2, 0, 1, 44.881883))
sketch2.addConstraint(Sketcher.Constraint("DistanceX", 3, 2, 3, 1, 9.650485))
sketch2.addConstraint(Sketcher.Constraint("DistanceX", 9, 1, 9, 2, 4.024155))
sketch2.addConstraint(Sketcher.Constraint("DistanceX", 11, 1, 11, 2, 7.071068))
sketch2.addConstraint(Sketcher.Constraint("DistanceY", 1, 1, 1, 2, 33.243272))
sketch2.addConstraint(Sketcher.Constraint("DistanceY", 6, 2, 6, 1, 12.020788))
sketch2.addConstraint(Sketcher.Constraint("DistanceY", 8, 2, 8, 1, 8.405536))
sketch2.addConstraint(Sketcher.Constraint("DistanceY", 18, 2, 18, 1, 3.773224))
sketch2.addConstraint(Sketcher.Constraint("DistanceY", 20, 2, 20, 1, 47.534583))
sketch2.addConstraint(Sketcher.Constraint("DistanceX", 21, 3, -1, 1, 25.632621))
sketch2.addConstraint(Sketcher.Constraint("DistanceY", 10, 2, 22, 3, 2.558149))
pad2 = doc.addObject("PartDesign::Pad", "Pad001")
body.addObject(pad2)
pad2.Profile = sketch2
pad2.Length = 7.5
pad2.Reversed = True

doc.recompute()
